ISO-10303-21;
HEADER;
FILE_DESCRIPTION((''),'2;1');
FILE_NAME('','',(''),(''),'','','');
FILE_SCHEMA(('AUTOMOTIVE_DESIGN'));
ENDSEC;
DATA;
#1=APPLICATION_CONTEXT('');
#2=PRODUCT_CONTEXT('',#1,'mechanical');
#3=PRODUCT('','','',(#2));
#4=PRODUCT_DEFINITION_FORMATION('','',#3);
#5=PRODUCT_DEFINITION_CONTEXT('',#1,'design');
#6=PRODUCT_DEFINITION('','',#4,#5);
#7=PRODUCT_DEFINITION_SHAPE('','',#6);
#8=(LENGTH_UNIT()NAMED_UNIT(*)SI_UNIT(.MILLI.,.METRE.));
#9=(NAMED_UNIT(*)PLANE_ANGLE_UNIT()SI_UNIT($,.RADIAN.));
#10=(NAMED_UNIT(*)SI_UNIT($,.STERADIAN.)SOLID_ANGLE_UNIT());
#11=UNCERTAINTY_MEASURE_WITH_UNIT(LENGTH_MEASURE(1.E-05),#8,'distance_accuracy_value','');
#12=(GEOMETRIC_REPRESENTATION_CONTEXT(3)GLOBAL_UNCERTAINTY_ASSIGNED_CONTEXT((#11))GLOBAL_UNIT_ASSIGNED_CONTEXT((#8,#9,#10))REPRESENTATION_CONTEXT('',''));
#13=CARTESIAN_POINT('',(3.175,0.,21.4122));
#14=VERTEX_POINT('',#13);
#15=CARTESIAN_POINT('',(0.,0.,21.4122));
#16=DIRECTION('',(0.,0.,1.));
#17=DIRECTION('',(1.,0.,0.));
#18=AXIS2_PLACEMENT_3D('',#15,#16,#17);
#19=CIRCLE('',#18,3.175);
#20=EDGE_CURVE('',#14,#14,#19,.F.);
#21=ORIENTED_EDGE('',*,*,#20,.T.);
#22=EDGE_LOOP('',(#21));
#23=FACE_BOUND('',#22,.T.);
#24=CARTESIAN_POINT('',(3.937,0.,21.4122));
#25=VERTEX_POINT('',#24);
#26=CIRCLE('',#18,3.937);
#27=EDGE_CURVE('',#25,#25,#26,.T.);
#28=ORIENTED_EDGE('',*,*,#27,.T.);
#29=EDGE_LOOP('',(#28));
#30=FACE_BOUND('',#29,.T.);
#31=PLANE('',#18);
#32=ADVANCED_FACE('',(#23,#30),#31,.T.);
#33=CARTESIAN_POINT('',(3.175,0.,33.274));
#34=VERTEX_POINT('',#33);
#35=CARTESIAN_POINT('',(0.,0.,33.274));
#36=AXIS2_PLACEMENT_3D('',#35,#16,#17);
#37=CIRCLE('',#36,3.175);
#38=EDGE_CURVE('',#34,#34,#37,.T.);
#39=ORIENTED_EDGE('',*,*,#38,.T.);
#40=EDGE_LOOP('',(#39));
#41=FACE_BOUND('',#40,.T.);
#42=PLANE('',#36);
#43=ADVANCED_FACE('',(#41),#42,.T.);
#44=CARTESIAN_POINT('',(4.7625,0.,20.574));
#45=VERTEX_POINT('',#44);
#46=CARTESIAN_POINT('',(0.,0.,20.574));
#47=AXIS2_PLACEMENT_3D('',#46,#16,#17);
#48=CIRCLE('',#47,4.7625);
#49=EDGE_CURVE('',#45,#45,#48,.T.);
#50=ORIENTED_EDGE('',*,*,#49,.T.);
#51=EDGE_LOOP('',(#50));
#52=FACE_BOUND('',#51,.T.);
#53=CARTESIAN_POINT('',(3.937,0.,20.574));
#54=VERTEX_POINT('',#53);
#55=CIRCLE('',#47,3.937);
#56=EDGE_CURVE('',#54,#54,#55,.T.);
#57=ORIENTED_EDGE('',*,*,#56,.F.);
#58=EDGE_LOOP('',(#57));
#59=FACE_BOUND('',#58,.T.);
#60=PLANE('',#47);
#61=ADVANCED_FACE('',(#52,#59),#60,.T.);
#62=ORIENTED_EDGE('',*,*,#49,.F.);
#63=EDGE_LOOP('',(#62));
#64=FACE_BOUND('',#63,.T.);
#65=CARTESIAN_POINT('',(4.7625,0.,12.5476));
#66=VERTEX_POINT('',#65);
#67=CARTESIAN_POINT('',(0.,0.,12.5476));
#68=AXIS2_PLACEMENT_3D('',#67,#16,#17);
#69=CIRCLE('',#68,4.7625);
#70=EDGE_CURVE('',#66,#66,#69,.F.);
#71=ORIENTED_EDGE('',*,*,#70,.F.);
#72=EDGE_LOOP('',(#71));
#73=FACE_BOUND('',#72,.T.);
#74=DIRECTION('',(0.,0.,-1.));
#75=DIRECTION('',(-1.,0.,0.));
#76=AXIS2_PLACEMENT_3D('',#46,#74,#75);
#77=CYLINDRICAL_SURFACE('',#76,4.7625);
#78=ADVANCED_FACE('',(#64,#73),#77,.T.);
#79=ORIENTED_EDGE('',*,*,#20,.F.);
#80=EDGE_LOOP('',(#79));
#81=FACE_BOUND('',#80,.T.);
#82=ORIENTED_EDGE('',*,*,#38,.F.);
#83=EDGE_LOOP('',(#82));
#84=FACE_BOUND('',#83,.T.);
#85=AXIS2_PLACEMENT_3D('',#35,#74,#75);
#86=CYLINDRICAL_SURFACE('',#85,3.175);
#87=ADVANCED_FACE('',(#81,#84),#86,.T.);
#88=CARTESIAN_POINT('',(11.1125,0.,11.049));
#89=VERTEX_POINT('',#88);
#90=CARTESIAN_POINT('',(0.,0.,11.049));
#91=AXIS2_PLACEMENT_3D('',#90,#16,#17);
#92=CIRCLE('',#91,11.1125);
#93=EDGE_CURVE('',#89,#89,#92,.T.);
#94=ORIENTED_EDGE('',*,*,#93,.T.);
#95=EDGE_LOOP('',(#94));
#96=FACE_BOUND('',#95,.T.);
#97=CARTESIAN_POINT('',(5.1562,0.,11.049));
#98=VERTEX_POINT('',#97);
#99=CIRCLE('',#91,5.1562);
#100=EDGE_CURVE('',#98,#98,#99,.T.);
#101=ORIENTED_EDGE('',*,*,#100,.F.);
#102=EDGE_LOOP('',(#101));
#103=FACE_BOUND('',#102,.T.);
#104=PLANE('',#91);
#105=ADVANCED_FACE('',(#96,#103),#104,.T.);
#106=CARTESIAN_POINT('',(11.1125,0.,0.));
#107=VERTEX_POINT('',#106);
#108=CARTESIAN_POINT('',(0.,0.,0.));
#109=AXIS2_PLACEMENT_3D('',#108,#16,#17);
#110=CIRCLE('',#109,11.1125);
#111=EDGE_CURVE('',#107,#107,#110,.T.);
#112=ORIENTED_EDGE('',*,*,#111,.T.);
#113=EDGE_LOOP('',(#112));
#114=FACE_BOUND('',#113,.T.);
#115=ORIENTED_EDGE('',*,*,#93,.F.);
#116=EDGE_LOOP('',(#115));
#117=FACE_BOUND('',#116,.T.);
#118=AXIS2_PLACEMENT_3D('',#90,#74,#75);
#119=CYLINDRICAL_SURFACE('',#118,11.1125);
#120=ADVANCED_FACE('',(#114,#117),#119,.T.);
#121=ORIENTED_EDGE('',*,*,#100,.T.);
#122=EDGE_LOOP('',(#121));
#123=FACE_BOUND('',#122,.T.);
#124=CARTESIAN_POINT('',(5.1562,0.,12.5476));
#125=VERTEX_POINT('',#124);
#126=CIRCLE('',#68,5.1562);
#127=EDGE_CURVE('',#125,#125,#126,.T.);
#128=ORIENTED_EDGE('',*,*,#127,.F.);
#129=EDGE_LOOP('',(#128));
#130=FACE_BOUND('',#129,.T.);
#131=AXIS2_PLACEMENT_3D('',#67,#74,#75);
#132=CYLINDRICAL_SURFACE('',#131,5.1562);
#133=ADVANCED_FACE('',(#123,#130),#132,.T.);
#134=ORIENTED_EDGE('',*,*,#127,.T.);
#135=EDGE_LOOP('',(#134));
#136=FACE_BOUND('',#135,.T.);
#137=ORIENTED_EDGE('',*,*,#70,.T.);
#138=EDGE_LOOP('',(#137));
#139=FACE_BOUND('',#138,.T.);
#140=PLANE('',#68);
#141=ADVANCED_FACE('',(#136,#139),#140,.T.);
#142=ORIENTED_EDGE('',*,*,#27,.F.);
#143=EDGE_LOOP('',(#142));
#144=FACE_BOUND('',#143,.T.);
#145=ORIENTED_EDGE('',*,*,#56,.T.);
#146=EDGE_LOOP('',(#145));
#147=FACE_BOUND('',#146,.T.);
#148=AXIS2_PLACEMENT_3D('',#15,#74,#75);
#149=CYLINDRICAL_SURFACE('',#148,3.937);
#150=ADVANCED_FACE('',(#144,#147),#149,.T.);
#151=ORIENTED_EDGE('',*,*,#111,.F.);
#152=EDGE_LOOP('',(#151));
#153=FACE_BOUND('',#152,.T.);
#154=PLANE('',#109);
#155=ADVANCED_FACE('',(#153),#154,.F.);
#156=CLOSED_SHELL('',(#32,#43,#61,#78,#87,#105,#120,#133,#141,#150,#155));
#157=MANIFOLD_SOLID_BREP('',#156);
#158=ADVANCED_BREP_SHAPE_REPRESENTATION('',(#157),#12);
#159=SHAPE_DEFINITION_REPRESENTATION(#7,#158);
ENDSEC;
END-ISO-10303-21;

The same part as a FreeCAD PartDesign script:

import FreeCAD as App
import Part
import Sketcher
Q = App.Units.Quantity

doc = App.newDocument("Part")
body = doc.addObject("PartDesign::Body", "Body")

# Sketch on XY plane
sketch1 = doc.addObject("Sketcher::SketchObject", "Sketch")
body.addObject(sketch1)
sketch1.AttachmentSupport = (doc.XY_Plane, [""])
sketch1.MapMode = "FlatFace"
sketch1.addGeometry(Part.Circle(App.Vector(0, 0, 0), App.Vector(0, 0, 1), 11.1125), False)
sketch1.addConstraint(Sketcher.Constraint("Coincident", 0, 3, -1, 1))
sketch1.addConstraint(Sketcher.Constraint("Diameter", 0, Q("0.875 in")))
pad1 = doc.addObject("PartDesign::Pad", "Pad")
body.addObject(pad1)
pad1.Profile = sketch1
pad1.Length = Q("0.435 in")

# Sketch on XY plane
sketch2 = doc.addObject("Sketcher::SketchObject", "Sketch001")
body.addObject(sketch2)
sketch2.AttachmentSupport = (doc.XY_Plane, [""])
sketch2.MapMode = "FlatFace"
sketch2.AttachmentOffset = App.Placement(App.Vector(0, 0, 0.435 * 25.4), App.Rotation())
sketch2.addGeometry(Part.Circle(App.Vector(0, 0, 0), App.Vector(0, 0, 1), 5.1562), False)
sketch2.addConstraint(Sketcher.Constraint("Coincident", 0, 3, -1, 1))
sketch2.addConstraint(Sketcher.Constraint("Diameter", 0, Q("0.406 in")))
pad2 = doc.addObject("PartDesign::Pad", "Pad001")
body.addObject(pad2)
pad2.Profile = sketch2
pad2.Length = Q("0.059 in")

# Sketch on XY plane
sketch3 = doc.addObject("Sketcher::SketchObject", "Sketch002")
body.addObject(sketch3)
sketch3.AttachmentSupport = (doc.XY_Plane, [""])
sketch3.MapMode = "FlatFace"
sketch3.AttachmentOffset = App.Placement(App.Vector(0, 0, 0.435 * 25.4), App.Rotation())
sketch3.addGeometry(Part.Circle(App.Vector(0, 0, 0), App.Vector(0, 0, 1), 4.7625), False)
sketch3.addConstraint(Sketcher.Constraint("Coincident", 0, 3, -1, 1))
sketch3.addConstraint(Sketcher.Constraint("Diameter", 0, Q("0.375 in")))
pad3 = doc.addObject("PartDesign::Pad", "Pad002")
body.addObject(pad3)
pad3.Profile = sketch3
pad3.Length = Q("0.375 in")

# Sketch on XY plane
sketch4 = doc.addObject("Sketcher::SketchObject", "Sketch003")
body.addObject(sketch4)
sketch4.AttachmentSupport = (doc.XY_Plane, [""])
sketch4.MapMode = "FlatFace"
sketch4.AttachmentOffset = App.Placement(App.Vector(0, 0, 0.81 * 25.4), App.Rotation())
sketch4.addGeometry(Part.Circle(App.Vector(0, 0, 0), App.Vector(0, 0, 1), 3.937), False)
sketch4.addConstraint(Sketcher.Constraint("Coincident", 0, 3, -1, 1))
sketch4.addConstraint(Sketcher.Constraint("Diameter", 0, Q("0.31 in")))
pad4 = doc.addObject("PartDesign::Pad", "Pad003")
body.addObject(pad4)
pad4.Profile = sketch4
pad4.Length = Q("0.033 in")

# Sketch on XY plane
sketch5 = doc.addObject("Sketcher::SketchObject", "Sketch004")
body.addObject(sketch5)
sketch5.AttachmentSupport = (doc.XY_Plane, [""])
sketch5.MapMode = "FlatFace"
sketch5.AttachmentOffset = App.Placement(App.Vector(0, 0, 0.435 * 25.4), App.Rotation())
sketch5.addGeometry(Part.Circle(App.Vector(0, 0, 0), App.Vector(0, 0, 1), 3.175), False)
sketch5.addConstraint(Sketcher.Constraint("Coincident", 0, 3, -1, 1))
sketch5.addConstraint(Sketcher.Constraint("Diameter", 0, Q("0.25 in")))
pad5 = doc.addObject("PartDesign::Pad", "Pad004")
body.addObject(pad5)
pad5.Profile = sketch5
pad5.Length = Q("0.875 in")

doc.recompute()
